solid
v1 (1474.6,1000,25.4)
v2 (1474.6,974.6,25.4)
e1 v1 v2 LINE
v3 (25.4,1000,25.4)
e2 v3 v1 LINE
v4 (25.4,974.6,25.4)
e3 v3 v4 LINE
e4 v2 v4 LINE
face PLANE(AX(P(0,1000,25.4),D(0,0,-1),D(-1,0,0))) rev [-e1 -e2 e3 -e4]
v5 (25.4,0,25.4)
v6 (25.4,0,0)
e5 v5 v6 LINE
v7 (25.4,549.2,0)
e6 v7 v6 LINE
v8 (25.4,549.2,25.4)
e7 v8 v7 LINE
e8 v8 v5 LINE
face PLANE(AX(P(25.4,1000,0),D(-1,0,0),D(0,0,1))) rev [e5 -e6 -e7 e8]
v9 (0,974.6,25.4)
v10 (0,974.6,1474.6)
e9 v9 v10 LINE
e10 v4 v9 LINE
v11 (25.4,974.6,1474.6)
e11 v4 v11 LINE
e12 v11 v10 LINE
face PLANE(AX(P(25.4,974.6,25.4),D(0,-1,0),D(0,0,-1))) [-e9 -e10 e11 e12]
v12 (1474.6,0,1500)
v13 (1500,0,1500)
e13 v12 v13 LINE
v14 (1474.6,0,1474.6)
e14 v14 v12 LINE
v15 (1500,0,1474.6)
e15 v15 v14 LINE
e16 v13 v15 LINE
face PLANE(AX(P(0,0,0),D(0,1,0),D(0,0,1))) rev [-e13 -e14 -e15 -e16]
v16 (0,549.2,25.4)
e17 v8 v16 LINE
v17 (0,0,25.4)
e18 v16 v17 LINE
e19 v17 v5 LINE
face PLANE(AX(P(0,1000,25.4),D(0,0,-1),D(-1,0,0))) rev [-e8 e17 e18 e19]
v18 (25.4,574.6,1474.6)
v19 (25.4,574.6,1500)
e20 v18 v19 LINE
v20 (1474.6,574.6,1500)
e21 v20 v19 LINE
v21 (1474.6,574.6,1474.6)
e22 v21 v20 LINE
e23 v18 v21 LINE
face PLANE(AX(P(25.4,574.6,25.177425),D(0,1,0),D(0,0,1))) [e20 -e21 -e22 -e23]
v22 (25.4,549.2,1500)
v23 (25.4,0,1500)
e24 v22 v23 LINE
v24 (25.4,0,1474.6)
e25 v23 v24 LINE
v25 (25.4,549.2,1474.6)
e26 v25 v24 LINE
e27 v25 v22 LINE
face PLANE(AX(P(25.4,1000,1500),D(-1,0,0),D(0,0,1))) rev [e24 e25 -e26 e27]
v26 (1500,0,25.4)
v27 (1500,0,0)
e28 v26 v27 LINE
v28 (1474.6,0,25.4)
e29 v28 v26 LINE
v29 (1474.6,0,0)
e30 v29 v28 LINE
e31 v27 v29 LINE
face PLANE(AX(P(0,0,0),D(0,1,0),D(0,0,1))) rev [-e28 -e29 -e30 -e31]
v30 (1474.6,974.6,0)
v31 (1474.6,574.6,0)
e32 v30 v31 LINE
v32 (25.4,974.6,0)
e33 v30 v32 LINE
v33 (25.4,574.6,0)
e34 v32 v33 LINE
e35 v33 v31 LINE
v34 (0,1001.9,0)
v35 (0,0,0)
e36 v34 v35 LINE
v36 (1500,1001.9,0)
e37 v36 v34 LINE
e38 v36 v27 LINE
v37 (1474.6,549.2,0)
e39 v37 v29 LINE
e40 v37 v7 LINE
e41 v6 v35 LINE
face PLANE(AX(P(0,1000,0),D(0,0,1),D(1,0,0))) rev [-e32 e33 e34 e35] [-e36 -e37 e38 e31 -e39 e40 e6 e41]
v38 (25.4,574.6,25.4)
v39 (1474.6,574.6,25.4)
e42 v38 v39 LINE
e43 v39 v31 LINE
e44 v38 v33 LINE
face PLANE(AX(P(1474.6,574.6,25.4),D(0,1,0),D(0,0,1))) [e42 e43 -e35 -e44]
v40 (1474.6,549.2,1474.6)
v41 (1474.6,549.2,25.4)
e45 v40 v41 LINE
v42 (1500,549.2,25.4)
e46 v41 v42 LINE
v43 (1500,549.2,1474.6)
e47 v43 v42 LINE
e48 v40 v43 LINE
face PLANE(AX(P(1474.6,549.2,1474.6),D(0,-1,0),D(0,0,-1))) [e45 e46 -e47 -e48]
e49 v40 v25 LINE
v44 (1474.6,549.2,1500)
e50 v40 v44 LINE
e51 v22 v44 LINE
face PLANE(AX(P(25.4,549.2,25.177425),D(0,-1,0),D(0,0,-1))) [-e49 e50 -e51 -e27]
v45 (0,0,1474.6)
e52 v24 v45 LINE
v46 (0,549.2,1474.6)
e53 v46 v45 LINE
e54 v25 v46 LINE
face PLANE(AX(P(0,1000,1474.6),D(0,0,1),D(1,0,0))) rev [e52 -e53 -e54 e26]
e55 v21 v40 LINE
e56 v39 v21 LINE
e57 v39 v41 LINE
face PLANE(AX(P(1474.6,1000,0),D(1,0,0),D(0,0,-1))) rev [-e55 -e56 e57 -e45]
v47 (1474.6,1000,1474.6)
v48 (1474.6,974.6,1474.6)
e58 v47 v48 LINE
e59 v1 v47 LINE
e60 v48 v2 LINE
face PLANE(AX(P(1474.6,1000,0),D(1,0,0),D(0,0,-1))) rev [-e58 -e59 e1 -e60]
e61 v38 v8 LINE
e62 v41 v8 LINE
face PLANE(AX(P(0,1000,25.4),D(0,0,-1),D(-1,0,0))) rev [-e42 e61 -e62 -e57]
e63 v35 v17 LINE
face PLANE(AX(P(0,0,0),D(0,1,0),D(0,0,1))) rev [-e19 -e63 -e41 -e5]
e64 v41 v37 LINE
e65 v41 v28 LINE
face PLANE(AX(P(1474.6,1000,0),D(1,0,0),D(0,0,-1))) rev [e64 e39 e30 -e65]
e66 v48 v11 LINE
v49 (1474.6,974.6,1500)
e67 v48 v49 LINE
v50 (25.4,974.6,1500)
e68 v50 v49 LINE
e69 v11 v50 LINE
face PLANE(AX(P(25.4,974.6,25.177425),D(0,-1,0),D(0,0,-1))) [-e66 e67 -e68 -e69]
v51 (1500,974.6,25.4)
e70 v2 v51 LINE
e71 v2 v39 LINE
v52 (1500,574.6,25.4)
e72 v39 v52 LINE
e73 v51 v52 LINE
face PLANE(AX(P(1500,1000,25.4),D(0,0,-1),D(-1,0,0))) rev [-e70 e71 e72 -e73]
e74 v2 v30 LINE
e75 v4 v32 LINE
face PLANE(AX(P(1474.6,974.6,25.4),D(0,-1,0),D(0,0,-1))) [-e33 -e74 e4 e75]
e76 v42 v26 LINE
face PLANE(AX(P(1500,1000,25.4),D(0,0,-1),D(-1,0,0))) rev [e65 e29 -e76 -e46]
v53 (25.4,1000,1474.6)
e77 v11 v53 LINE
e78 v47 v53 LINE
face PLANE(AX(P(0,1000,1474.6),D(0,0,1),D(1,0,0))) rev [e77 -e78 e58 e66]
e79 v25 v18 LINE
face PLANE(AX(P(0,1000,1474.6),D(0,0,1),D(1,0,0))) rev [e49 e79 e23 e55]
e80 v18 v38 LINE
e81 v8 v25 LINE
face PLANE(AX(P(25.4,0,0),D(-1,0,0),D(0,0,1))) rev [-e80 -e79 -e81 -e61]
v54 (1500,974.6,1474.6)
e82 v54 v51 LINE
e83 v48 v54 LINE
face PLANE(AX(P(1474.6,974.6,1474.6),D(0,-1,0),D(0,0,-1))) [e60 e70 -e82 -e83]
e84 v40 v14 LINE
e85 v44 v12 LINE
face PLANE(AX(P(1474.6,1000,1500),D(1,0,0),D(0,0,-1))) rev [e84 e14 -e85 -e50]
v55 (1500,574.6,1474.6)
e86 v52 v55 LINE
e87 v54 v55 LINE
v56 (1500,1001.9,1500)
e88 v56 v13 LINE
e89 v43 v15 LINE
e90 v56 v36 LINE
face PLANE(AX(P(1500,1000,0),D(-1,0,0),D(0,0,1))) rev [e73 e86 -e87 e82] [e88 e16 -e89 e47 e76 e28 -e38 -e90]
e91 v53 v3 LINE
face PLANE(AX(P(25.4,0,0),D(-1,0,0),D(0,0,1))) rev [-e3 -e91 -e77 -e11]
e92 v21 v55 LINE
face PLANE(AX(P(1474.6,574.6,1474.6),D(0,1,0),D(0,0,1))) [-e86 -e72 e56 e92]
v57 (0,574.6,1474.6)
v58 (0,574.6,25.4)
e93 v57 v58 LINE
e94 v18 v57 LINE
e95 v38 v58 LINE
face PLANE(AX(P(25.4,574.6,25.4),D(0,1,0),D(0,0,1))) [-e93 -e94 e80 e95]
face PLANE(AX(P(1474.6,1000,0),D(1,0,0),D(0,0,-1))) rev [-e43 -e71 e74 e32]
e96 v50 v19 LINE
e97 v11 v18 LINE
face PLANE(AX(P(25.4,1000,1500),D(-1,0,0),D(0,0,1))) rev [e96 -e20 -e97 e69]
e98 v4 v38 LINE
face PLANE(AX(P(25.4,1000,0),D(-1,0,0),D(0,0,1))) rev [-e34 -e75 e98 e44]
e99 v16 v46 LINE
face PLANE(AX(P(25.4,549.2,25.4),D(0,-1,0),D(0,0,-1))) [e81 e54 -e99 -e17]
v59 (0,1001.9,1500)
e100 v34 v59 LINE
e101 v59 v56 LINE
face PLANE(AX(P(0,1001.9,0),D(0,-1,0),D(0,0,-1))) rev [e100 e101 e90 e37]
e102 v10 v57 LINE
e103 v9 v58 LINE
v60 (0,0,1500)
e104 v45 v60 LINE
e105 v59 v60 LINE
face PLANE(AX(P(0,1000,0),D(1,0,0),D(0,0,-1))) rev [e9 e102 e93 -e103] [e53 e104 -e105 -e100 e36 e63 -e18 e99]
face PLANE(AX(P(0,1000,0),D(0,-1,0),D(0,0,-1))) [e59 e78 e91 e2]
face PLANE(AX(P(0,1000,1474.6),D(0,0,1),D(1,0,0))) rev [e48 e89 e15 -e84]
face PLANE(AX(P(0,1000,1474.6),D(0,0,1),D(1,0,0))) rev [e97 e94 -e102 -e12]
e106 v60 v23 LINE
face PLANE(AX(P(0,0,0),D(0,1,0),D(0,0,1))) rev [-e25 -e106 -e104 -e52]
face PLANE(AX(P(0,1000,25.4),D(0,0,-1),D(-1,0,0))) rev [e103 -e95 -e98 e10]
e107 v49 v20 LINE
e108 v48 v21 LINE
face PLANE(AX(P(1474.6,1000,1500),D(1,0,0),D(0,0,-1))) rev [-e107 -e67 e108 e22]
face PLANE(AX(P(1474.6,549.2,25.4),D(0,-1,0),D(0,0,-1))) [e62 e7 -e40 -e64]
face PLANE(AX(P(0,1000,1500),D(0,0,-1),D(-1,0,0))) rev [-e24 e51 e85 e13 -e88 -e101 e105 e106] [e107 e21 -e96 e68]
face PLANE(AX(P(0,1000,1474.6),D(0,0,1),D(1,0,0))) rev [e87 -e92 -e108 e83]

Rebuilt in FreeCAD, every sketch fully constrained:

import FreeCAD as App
import Part
import Sketcher


def add_polygon(sketch, points):
    """Adds a closed chain of lines whose ends are joined by coincident constraints."""
    first, n = sketch.GeometryCount, len(points)
    for a, b in zip(points, points[1:] + points[:1]):
        sketch.addGeometry(Part.LineSegment(App.Vector(*a, 0), App.Vector(*b, 0)), False)
    for i in range(n):
        sketch.addConstraint(Sketcher.Constraint("Coincident", first + i, 2, first + (i + 1) % n, 1))

doc = App.newDocument("Part")
params = doc.addObject("Spreadsheet::Sheet", "Params")
for row, (alias, value) in enumerate([
    ("sketch1_width", "25.4 mm"),
    ("pad1_length", "1000 mm"),
    ("sketch2_width", "25.4 mm"),
    ("pad2_length", "1000 mm"),
    ("sketch3_width", "25.4 mm"),
    ("pad3_length", "1000 mm"),
    ("sketch4_width", "25.4 mm"),
    ("pad4_length", "1000 mm"),
    ("sketch5_width", "1449.2 mm"),
    ("sketch5_height", "25.4 mm"),
    ("pad5_length", "25.4 mm"),
    ("sketch6_width", "25.4 mm"),
    ("sketch6_height", "1449.2 mm"),
    ("pad6_length", "25.4 mm"),
    ("sketch7_width", "1449.2 mm"),
    ("sketch7_height", "25.4 mm"),
    ("pad7_length", "25.4 mm"),
    ("sketch8_width", "25.4 mm"),
    ("sketch8_height", "1449.2 mm"),
    ("pad8_length", "25.4 mm"),
    ("sketch9_width", "1500 mm"),
    ("pad9_length", "1.9 mm"),
], start=1):
    params.set(f"A{row}", alias)
    params.set(f"B{row}", "=" + value)
    params.setAlias(f"B{row}", alias)

body = doc.addObject("PartDesign::Body", "Body")

sketch1 = body.newObject("Sketcher::SketchObject", "Sketch")
sketch1.AttachmentSupport = (doc.getObject("XZ_Plane"), [""])
sketch1.MapMode = "FlatFace"
add_polygon(sketch1, [(0, 0), (0, 25.4), (25.4, 25.4), (25.4, 0)])
sketch1.addConstraint([
    Sketcher.Constraint("Vertical", 0),
    Sketcher.Constraint("Horizontal", 1),
    Sketcher.Constraint("Vertical", 2),
    Sketcher.Constraint("Horizontal", 3),
    Sketcher.Constraint("Coincident", 3, 2, -1, 1),
    Sketcher.Constraint("Equal", 3, 0),
    Sketcher.Constraint("DistanceX", 1, 1, 1, 2, 25.4),
])
sketch1.setExpression("Constraints[10]", "Params.sketch1_width")
pad1 = body.newObject("PartDesign::Pad", "Pad")
pad1.Profile = sketch1
pad1.setExpression("Length", "Params.pad1_length")
pad1.Reversed = True
body2 = doc.addObject("PartDesign::Body", "Body001")

sketch2 = body2.newObject("Sketcher::SketchObject", "Sketch001")
sketch2.AttachmentSupport = (doc.getObject("XZ_Plane001"), [""])
sketch2.MapMode = "FlatFace"
add_polygon(sketch2, [(1474.6, 0), (1474.6, 25.4), (1500, 25.4), (1500, 0)])
sketch2.addConstraint([
    Sketcher.Constraint("Vertical", 0),
    Sketcher.Constraint("Horizontal", 1),
    Sketcher.Constraint("Vertical", 2),
    Sketcher.Constraint("Horizontal", 3),
    Sketcher.Constraint("PointOnObject", 2, 2, -1),
    Sketcher.Constraint("Equal", 3, 0),
    Sketcher.Constraint("DistanceX", 1, 1, 1, 2, 25.4),
    Sketcher.Constraint("DistanceX", -1, 1, 1, 2, 1500.0),
])
sketch2.setExpression("Constraints[10]", "Params.sketch2_width")
pad2 = body2.newObject("PartDesign::Pad", "Pad001")
pad2.Profile = sketch2
pad2.setExpression("Length", "Params.pad2_length")
pad2.Reversed = True
body3 = doc.addObject("PartDesign::Body", "Body002")

sketch3 = body3.newObject("Sketcher::SketchObject", "Sketch002")
sketch3.AttachmentSupport = (doc.getObject("XZ_Plane002"), [""])
sketch3.MapMode = "FlatFace"
add_polygon(sketch3, [(1474.6, 1474.6), (1474.6, 1500), (1500, 1500), (1500, 1474.6)])
sketch3.addConstraint([
    Sketcher.Constraint("Vertical", 0),
    Sketcher.Constraint("Horizontal", 1),
    Sketcher.Constraint("Vertical", 2),
    Sketcher.Constraint("Horizontal", 3),
    Sketcher.Constraint("Equal", 3, 0),
    Sketcher.Constraint("DistanceX", 1, 1, 1, 2, 25.4),
    Sketcher.Constraint("DistanceY", -1, 1, 0, 2, 1500.0),
    Sketcher.Constraint("DistanceX", -1, 1, 1, 2, 1500.0),
])
sketch3.setExpression("Constraints[9]", "Params.sketch3_width")
pad3 = body3.newObject("PartDesign::Pad", "Pad002")
pad3.Profile = sketch3
pad3.setExpression("Length", "Params.pad3_length")
pad3.Reversed = True
body4 = doc.addObject("PartDesign::Body", "Body003")

sketch4 = body4.newObject("Sketcher::SketchObject", "Sketch003")
sketch4.AttachmentSupport = (doc.getObject("XZ_Plane003"), [""])
sketch4.MapMode = "FlatFace"
add_polygon(sketch4, [(0, 1474.6), (0, 1500), (25.4, 1500), (25.4, 1474.6)])
sketch4.addConstraint([
    Sketcher.Constraint("Vertical", 0),
    Sketcher.Constraint("Horizontal", 1),
    Sketcher.Constraint("Vertical", 2),
    Sketcher.Constraint("Horizontal", 3),
    Sketcher.Constraint("PointOnObject", 0, 2, -2),
    Sketcher.Constraint("Equal", 3, 0),
    Sketcher.Constraint("DistanceX", 1, 1, 1, 2, 25.4),
    Sketcher.Constraint("DistanceY", -1, 1, 0, 2, 1500.0),
])
sketch4.setExpression("Constraints[10]", "Params.sketch4_width")
pad4 = body4.newObject("PartDesign::Pad", "Pad003")
pad4.Profile = sketch4
pad4.setExpression("Length", "Params.pad4_length")
pad4.Reversed = True
body3.AllowCompound = True
doc.recompute()

boolean = body3.newObject("PartDesign::Boolean", "Boolean")
boolean.Type = "Fuse"
boolean.addObjects([body4])

sketch5 = body3.newObject("Sketcher::SketchObject", "Sketch004")
sketch5.AttachmentSupport = (doc.getObject("XY_Plane002"), [""])
sketch5.MapMode = "FlatFace"
sketch5.AttachmentOffset = App.Placement(App.Vector(0, 0, 1500), App.Rotation())
add_polygon(sketch5, [(25.4, 1000), (25.4, 974.6), (1474.6, 974.6), (1474.6, 1000)])
add_polygon(sketch5, [(25.4, 574.6), (25.4, 549.2), (1474.6, 549.2), (1474.6, 574.6)])
sketch5.addConstraint([
    Sketcher.Constraint("Vertical", 0),
    Sketcher.Constraint("Horizontal", 1),
    Sketcher.Constraint("Vertical", 2),
    Sketcher.Constraint("Horizontal", 3),
    Sketcher.Constraint("Vertical", 4),
    Sketcher.Constraint("Horizontal", 5),
    Sketcher.Constraint("Vertical", 6),
    Sketcher.Constraint("Horizontal", 7),
    Sketcher.Constraint("Vertical", 3, 2, 4, 2),
    Sketcher.Constraint("Vertical", 2, 2, 5, 2),
    Sketcher.Constraint("Equal", 2, 4),
    Sketcher.Constraint("DistanceX", 1, 1, 1, 2, 1449.2),
    Sketcher.Constraint("DistanceY", 0, 2, 0, 1, 25.4),
    Sketcher.Constraint("DistanceY", -1, 1, 2, 2, 1000.0),
    Sketcher.Constraint("DistanceY", 6, 2, 1, 2, 400.0),
    Sketcher.Constraint("DistanceX", -1, 1, 0, 2, 25.4),
])
sketch5.setExpression("Constraints[19]", "Params.sketch5_width")
sketch5.setExpression("Constraints[20]", "Params.sketch5_height")
pad5 = body3.newObject("PartDesign::Pad", "Pad004")
pad5.Profile = sketch5
pad5.setExpression("Length", "Params.pad5_length")
pad5.Reversed = True
body2.AllowCompound = True
doc.recompute()

boolean2 = body2.newObject("PartDesign::Boolean", "Boolean001")
boolean2.Type = "Fuse"
boolean2.addObjects([body3])

sketch6 = body2.newObject("Sketcher::SketchObject", "Sketch005")
sketch6.AttachmentSupport = (doc.getObject("YZ_Plane001"), [""])
sketch6.MapMode = "FlatFace"
sketch6.AttachmentOffset = App.Placement(App.Vector(0, 0, 1500), App.Rotation())
add_polygon(sketch6, [(1000, 1474.6), (974.6, 1474.6), (974.6, 25.4), (1000, 25.4)])
add_polygon(sketch6, [(574.6, 1474.6), (549.2, 1474.6), (549.2, 25.4), (574.6, 25.4)])
sketch6.addConstraint([
    Sketcher.Constraint("Horizontal", 0),
    Sketcher.Constraint("Vertical", 1),
    Sketcher.Constraint("Horizontal", 2),
    Sketcher.Constraint("Vertical", 3),
    Sketcher.Constraint("Horizontal", 4),
    Sketcher.Constraint("Vertical", 5),
    Sketcher.Constraint("Horizontal", 6),
    Sketcher.Constraint("Vertical", 7),
    Sketcher.Constraint("Horizontal", 3, 2, 4, 2),
    Sketcher.Constraint("Horizontal", 2, 2, 5, 2),
    Sketcher.Constraint("Equal", 2, 4),
    Sketcher.Constraint("DistanceX", 0, 2, 0, 1, 25.4),
    Sketcher.Constraint("DistanceY", 1, 2, 1, 1, 1449.2),
    Sketcher.Constraint("DistanceX", -1, 1, 2, 2, 1000.0),
    Sketcher.Constraint("DistanceX", 6, 2, 1, 2, 400.0),
    Sketcher.Constraint("DistanceY", -1, 1, 0, 2, 1474.6),
])
sketch6.setExpression("Constraints[19]", "Params.sketch6_width")
sketch6.setExpression("Constraints[20]", "Params.sketch6_height")
pad6 = body2.newObject("PartDesign::Pad", "Pad005")
pad6.Profile = sketch6
pad6.setExpression("Length", "Params.pad6_length")
pad6.Reversed = True
body.AllowCompound = True
doc.recompute()

boolean3 = body.newObject("PartDesign::Boolean", "Boolean002")
boolean3.Type = "Fuse"
boolean3.addObjects([body2])

sketch7 = body.newObject("Sketcher::SketchObject", "Sketch006")
sketch7.AttachmentSupport = (doc.getObject("XY_Plane"), [""])
sketch7.MapMode = "FlatFace"
add_polygon(sketch7, [(1474.6, 1000), (1474.6, 974.6), (25.4, 974.6), (25.4, 1000)])
add_polygon(sketch7, [(1474.6, 574.6), (1474.6, 549.2), (25.4, 549.2), (25.4, 574.6)])
sketch7.addConstraint([
    Sketcher.Constraint("Vertical", 0),
    Sketcher.Constraint("Horizontal", 1),
    Sketcher.Constraint("Vertical", 2),
    Sketcher.Constraint("Horizontal", 3),
    Sketcher.Constraint("Vertical", 4),
    Sketcher.Constraint("Horizontal", 5),
    Sketcher.Constraint("Vertical", 6),
    Sketcher.Constraint("Horizontal", 7),
    Sketcher.Constraint("Vertical", 3, 2, 4, 2),
    Sketcher.Constraint("Vertical", 2, 2, 5, 2),
    Sketcher.Constraint("Equal", 2, 4),
    Sketcher.Constraint("DistanceX", 1, 2, 1, 1, 1449.2),
    Sketcher.Constraint("DistanceY", 0, 2, 0, 1, 25.4),
    Sketcher.Constraint("DistanceY", -1, 1, 2, 2, 1000.0),
    Sketcher.Constraint("DistanceY", 6, 2, 1, 2, 400.0),
    Sketcher.Constraint("DistanceX", -1, 1, 0, 2, 1474.6),
])
sketch7.setExpression("Constraints[19]", "Params.sketch7_width")
sketch7.setExpression("Constraints[20]", "Params.sketch7_height")
pad7 = body.newObject("PartDesign::Pad", "Pad006")
pad7.Profile = sketch7
pad7.setExpression("Length", "Params.pad7_length")

sketch8 = body.newObject("Sketcher::SketchObject", "Sketch007")
sketch8.AttachmentSupport = (doc.getObject("YZ_Plane"), [""])
sketch8.MapMode = "FlatFace"
add_polygon(sketch8, [(1000, 25.4), (974.6, 25.4), (974.6, 1474.6), (1000, 1474.6)])
add_polygon(sketch8, [(574.6, 25.4), (549.2, 25.4), (549.2, 1474.6), (574.6, 1474.6)])
sketch8.addConstraint([
    Sketcher.Constraint("Horizontal", 0),
    Sketcher.Constraint("Vertical", 1),
    Sketcher.Constraint("Horizontal", 2),
    Sketcher.Constraint("Vertical", 3),
    Sketcher.Constraint("Horizontal", 4),
    Sketcher.Constraint("Vertical", 5),
    Sketcher.Constraint("Horizontal", 6),
    Sketcher.Constraint("Vertical", 7),
    Sketcher.Constraint("Horizontal", 3, 2, 4, 2),
    Sketcher.Constraint("Horizontal", 2, 2, 5, 2),
    Sketcher.Constraint("Equal", 2, 4),
    Sketcher.Constraint("DistanceX", 0, 2, 0, 1, 25.4),
    Sketcher.Constraint("DistanceY", 1, 1, 1, 2, 1449.2),
    Sketcher.Constraint("DistanceX", -1, 1, 2, 2, 1000.0),
    Sketcher.Constraint("DistanceX", 6, 2, 1, 2, 400.0),
    Sketcher.Constraint("DistanceY", -1, 1, 0, 2, 25.4),
])
sketch8.setExpression("Constraints[19]", "Params.sketch8_width")
sketch8.setExpression("Constraints[20]", "Params.sketch8_height")
pad8 = body.newObject("PartDesign::Pad", "Pad007")
pad8.Profile = sketch8
pad8.setExpression("Length", "Params.pad8_length")

sketch9 = body.newObject("Sketcher::SketchObject", "Sketch008")
sketch9.AttachmentSupport = (doc.getObject("XZ_Plane"), [""])
sketch9.MapMode = "FlatFace"
sketch9.AttachmentOffset = App.Placement(App.Vector(0, 0, -1000), App.Rotation())
add_polygon(sketch9, [(0, 0), (0, 1500), (1500, 1500), (1500, 0)])
sketch9.addConstraint([
    Sketcher.Constraint("Vertical", 0),
    Sketcher.Constraint("Horizontal", 1),
    Sketcher.Constraint("Vertical", 2),
    Sketcher.Constraint("Horizontal", 3),
    Sketcher.Constraint("Coincident", 3, 2, -1, 1),
    Sketcher.Constraint("Equal", 3, 0),
    Sketcher.Constraint("DistanceX", 1, 1, 1, 2, 1500.0),
])
sketch9.setExpression("Constraints[10]", "Params.sketch9_width")
pad9 = body.newObject("PartDesign::Pad", "Pad008")
pad9.Profile = sketch9
pad9.setExpression("Length", "Params.pad9_length")
pad9.Reversed = True

doc.recompute()
